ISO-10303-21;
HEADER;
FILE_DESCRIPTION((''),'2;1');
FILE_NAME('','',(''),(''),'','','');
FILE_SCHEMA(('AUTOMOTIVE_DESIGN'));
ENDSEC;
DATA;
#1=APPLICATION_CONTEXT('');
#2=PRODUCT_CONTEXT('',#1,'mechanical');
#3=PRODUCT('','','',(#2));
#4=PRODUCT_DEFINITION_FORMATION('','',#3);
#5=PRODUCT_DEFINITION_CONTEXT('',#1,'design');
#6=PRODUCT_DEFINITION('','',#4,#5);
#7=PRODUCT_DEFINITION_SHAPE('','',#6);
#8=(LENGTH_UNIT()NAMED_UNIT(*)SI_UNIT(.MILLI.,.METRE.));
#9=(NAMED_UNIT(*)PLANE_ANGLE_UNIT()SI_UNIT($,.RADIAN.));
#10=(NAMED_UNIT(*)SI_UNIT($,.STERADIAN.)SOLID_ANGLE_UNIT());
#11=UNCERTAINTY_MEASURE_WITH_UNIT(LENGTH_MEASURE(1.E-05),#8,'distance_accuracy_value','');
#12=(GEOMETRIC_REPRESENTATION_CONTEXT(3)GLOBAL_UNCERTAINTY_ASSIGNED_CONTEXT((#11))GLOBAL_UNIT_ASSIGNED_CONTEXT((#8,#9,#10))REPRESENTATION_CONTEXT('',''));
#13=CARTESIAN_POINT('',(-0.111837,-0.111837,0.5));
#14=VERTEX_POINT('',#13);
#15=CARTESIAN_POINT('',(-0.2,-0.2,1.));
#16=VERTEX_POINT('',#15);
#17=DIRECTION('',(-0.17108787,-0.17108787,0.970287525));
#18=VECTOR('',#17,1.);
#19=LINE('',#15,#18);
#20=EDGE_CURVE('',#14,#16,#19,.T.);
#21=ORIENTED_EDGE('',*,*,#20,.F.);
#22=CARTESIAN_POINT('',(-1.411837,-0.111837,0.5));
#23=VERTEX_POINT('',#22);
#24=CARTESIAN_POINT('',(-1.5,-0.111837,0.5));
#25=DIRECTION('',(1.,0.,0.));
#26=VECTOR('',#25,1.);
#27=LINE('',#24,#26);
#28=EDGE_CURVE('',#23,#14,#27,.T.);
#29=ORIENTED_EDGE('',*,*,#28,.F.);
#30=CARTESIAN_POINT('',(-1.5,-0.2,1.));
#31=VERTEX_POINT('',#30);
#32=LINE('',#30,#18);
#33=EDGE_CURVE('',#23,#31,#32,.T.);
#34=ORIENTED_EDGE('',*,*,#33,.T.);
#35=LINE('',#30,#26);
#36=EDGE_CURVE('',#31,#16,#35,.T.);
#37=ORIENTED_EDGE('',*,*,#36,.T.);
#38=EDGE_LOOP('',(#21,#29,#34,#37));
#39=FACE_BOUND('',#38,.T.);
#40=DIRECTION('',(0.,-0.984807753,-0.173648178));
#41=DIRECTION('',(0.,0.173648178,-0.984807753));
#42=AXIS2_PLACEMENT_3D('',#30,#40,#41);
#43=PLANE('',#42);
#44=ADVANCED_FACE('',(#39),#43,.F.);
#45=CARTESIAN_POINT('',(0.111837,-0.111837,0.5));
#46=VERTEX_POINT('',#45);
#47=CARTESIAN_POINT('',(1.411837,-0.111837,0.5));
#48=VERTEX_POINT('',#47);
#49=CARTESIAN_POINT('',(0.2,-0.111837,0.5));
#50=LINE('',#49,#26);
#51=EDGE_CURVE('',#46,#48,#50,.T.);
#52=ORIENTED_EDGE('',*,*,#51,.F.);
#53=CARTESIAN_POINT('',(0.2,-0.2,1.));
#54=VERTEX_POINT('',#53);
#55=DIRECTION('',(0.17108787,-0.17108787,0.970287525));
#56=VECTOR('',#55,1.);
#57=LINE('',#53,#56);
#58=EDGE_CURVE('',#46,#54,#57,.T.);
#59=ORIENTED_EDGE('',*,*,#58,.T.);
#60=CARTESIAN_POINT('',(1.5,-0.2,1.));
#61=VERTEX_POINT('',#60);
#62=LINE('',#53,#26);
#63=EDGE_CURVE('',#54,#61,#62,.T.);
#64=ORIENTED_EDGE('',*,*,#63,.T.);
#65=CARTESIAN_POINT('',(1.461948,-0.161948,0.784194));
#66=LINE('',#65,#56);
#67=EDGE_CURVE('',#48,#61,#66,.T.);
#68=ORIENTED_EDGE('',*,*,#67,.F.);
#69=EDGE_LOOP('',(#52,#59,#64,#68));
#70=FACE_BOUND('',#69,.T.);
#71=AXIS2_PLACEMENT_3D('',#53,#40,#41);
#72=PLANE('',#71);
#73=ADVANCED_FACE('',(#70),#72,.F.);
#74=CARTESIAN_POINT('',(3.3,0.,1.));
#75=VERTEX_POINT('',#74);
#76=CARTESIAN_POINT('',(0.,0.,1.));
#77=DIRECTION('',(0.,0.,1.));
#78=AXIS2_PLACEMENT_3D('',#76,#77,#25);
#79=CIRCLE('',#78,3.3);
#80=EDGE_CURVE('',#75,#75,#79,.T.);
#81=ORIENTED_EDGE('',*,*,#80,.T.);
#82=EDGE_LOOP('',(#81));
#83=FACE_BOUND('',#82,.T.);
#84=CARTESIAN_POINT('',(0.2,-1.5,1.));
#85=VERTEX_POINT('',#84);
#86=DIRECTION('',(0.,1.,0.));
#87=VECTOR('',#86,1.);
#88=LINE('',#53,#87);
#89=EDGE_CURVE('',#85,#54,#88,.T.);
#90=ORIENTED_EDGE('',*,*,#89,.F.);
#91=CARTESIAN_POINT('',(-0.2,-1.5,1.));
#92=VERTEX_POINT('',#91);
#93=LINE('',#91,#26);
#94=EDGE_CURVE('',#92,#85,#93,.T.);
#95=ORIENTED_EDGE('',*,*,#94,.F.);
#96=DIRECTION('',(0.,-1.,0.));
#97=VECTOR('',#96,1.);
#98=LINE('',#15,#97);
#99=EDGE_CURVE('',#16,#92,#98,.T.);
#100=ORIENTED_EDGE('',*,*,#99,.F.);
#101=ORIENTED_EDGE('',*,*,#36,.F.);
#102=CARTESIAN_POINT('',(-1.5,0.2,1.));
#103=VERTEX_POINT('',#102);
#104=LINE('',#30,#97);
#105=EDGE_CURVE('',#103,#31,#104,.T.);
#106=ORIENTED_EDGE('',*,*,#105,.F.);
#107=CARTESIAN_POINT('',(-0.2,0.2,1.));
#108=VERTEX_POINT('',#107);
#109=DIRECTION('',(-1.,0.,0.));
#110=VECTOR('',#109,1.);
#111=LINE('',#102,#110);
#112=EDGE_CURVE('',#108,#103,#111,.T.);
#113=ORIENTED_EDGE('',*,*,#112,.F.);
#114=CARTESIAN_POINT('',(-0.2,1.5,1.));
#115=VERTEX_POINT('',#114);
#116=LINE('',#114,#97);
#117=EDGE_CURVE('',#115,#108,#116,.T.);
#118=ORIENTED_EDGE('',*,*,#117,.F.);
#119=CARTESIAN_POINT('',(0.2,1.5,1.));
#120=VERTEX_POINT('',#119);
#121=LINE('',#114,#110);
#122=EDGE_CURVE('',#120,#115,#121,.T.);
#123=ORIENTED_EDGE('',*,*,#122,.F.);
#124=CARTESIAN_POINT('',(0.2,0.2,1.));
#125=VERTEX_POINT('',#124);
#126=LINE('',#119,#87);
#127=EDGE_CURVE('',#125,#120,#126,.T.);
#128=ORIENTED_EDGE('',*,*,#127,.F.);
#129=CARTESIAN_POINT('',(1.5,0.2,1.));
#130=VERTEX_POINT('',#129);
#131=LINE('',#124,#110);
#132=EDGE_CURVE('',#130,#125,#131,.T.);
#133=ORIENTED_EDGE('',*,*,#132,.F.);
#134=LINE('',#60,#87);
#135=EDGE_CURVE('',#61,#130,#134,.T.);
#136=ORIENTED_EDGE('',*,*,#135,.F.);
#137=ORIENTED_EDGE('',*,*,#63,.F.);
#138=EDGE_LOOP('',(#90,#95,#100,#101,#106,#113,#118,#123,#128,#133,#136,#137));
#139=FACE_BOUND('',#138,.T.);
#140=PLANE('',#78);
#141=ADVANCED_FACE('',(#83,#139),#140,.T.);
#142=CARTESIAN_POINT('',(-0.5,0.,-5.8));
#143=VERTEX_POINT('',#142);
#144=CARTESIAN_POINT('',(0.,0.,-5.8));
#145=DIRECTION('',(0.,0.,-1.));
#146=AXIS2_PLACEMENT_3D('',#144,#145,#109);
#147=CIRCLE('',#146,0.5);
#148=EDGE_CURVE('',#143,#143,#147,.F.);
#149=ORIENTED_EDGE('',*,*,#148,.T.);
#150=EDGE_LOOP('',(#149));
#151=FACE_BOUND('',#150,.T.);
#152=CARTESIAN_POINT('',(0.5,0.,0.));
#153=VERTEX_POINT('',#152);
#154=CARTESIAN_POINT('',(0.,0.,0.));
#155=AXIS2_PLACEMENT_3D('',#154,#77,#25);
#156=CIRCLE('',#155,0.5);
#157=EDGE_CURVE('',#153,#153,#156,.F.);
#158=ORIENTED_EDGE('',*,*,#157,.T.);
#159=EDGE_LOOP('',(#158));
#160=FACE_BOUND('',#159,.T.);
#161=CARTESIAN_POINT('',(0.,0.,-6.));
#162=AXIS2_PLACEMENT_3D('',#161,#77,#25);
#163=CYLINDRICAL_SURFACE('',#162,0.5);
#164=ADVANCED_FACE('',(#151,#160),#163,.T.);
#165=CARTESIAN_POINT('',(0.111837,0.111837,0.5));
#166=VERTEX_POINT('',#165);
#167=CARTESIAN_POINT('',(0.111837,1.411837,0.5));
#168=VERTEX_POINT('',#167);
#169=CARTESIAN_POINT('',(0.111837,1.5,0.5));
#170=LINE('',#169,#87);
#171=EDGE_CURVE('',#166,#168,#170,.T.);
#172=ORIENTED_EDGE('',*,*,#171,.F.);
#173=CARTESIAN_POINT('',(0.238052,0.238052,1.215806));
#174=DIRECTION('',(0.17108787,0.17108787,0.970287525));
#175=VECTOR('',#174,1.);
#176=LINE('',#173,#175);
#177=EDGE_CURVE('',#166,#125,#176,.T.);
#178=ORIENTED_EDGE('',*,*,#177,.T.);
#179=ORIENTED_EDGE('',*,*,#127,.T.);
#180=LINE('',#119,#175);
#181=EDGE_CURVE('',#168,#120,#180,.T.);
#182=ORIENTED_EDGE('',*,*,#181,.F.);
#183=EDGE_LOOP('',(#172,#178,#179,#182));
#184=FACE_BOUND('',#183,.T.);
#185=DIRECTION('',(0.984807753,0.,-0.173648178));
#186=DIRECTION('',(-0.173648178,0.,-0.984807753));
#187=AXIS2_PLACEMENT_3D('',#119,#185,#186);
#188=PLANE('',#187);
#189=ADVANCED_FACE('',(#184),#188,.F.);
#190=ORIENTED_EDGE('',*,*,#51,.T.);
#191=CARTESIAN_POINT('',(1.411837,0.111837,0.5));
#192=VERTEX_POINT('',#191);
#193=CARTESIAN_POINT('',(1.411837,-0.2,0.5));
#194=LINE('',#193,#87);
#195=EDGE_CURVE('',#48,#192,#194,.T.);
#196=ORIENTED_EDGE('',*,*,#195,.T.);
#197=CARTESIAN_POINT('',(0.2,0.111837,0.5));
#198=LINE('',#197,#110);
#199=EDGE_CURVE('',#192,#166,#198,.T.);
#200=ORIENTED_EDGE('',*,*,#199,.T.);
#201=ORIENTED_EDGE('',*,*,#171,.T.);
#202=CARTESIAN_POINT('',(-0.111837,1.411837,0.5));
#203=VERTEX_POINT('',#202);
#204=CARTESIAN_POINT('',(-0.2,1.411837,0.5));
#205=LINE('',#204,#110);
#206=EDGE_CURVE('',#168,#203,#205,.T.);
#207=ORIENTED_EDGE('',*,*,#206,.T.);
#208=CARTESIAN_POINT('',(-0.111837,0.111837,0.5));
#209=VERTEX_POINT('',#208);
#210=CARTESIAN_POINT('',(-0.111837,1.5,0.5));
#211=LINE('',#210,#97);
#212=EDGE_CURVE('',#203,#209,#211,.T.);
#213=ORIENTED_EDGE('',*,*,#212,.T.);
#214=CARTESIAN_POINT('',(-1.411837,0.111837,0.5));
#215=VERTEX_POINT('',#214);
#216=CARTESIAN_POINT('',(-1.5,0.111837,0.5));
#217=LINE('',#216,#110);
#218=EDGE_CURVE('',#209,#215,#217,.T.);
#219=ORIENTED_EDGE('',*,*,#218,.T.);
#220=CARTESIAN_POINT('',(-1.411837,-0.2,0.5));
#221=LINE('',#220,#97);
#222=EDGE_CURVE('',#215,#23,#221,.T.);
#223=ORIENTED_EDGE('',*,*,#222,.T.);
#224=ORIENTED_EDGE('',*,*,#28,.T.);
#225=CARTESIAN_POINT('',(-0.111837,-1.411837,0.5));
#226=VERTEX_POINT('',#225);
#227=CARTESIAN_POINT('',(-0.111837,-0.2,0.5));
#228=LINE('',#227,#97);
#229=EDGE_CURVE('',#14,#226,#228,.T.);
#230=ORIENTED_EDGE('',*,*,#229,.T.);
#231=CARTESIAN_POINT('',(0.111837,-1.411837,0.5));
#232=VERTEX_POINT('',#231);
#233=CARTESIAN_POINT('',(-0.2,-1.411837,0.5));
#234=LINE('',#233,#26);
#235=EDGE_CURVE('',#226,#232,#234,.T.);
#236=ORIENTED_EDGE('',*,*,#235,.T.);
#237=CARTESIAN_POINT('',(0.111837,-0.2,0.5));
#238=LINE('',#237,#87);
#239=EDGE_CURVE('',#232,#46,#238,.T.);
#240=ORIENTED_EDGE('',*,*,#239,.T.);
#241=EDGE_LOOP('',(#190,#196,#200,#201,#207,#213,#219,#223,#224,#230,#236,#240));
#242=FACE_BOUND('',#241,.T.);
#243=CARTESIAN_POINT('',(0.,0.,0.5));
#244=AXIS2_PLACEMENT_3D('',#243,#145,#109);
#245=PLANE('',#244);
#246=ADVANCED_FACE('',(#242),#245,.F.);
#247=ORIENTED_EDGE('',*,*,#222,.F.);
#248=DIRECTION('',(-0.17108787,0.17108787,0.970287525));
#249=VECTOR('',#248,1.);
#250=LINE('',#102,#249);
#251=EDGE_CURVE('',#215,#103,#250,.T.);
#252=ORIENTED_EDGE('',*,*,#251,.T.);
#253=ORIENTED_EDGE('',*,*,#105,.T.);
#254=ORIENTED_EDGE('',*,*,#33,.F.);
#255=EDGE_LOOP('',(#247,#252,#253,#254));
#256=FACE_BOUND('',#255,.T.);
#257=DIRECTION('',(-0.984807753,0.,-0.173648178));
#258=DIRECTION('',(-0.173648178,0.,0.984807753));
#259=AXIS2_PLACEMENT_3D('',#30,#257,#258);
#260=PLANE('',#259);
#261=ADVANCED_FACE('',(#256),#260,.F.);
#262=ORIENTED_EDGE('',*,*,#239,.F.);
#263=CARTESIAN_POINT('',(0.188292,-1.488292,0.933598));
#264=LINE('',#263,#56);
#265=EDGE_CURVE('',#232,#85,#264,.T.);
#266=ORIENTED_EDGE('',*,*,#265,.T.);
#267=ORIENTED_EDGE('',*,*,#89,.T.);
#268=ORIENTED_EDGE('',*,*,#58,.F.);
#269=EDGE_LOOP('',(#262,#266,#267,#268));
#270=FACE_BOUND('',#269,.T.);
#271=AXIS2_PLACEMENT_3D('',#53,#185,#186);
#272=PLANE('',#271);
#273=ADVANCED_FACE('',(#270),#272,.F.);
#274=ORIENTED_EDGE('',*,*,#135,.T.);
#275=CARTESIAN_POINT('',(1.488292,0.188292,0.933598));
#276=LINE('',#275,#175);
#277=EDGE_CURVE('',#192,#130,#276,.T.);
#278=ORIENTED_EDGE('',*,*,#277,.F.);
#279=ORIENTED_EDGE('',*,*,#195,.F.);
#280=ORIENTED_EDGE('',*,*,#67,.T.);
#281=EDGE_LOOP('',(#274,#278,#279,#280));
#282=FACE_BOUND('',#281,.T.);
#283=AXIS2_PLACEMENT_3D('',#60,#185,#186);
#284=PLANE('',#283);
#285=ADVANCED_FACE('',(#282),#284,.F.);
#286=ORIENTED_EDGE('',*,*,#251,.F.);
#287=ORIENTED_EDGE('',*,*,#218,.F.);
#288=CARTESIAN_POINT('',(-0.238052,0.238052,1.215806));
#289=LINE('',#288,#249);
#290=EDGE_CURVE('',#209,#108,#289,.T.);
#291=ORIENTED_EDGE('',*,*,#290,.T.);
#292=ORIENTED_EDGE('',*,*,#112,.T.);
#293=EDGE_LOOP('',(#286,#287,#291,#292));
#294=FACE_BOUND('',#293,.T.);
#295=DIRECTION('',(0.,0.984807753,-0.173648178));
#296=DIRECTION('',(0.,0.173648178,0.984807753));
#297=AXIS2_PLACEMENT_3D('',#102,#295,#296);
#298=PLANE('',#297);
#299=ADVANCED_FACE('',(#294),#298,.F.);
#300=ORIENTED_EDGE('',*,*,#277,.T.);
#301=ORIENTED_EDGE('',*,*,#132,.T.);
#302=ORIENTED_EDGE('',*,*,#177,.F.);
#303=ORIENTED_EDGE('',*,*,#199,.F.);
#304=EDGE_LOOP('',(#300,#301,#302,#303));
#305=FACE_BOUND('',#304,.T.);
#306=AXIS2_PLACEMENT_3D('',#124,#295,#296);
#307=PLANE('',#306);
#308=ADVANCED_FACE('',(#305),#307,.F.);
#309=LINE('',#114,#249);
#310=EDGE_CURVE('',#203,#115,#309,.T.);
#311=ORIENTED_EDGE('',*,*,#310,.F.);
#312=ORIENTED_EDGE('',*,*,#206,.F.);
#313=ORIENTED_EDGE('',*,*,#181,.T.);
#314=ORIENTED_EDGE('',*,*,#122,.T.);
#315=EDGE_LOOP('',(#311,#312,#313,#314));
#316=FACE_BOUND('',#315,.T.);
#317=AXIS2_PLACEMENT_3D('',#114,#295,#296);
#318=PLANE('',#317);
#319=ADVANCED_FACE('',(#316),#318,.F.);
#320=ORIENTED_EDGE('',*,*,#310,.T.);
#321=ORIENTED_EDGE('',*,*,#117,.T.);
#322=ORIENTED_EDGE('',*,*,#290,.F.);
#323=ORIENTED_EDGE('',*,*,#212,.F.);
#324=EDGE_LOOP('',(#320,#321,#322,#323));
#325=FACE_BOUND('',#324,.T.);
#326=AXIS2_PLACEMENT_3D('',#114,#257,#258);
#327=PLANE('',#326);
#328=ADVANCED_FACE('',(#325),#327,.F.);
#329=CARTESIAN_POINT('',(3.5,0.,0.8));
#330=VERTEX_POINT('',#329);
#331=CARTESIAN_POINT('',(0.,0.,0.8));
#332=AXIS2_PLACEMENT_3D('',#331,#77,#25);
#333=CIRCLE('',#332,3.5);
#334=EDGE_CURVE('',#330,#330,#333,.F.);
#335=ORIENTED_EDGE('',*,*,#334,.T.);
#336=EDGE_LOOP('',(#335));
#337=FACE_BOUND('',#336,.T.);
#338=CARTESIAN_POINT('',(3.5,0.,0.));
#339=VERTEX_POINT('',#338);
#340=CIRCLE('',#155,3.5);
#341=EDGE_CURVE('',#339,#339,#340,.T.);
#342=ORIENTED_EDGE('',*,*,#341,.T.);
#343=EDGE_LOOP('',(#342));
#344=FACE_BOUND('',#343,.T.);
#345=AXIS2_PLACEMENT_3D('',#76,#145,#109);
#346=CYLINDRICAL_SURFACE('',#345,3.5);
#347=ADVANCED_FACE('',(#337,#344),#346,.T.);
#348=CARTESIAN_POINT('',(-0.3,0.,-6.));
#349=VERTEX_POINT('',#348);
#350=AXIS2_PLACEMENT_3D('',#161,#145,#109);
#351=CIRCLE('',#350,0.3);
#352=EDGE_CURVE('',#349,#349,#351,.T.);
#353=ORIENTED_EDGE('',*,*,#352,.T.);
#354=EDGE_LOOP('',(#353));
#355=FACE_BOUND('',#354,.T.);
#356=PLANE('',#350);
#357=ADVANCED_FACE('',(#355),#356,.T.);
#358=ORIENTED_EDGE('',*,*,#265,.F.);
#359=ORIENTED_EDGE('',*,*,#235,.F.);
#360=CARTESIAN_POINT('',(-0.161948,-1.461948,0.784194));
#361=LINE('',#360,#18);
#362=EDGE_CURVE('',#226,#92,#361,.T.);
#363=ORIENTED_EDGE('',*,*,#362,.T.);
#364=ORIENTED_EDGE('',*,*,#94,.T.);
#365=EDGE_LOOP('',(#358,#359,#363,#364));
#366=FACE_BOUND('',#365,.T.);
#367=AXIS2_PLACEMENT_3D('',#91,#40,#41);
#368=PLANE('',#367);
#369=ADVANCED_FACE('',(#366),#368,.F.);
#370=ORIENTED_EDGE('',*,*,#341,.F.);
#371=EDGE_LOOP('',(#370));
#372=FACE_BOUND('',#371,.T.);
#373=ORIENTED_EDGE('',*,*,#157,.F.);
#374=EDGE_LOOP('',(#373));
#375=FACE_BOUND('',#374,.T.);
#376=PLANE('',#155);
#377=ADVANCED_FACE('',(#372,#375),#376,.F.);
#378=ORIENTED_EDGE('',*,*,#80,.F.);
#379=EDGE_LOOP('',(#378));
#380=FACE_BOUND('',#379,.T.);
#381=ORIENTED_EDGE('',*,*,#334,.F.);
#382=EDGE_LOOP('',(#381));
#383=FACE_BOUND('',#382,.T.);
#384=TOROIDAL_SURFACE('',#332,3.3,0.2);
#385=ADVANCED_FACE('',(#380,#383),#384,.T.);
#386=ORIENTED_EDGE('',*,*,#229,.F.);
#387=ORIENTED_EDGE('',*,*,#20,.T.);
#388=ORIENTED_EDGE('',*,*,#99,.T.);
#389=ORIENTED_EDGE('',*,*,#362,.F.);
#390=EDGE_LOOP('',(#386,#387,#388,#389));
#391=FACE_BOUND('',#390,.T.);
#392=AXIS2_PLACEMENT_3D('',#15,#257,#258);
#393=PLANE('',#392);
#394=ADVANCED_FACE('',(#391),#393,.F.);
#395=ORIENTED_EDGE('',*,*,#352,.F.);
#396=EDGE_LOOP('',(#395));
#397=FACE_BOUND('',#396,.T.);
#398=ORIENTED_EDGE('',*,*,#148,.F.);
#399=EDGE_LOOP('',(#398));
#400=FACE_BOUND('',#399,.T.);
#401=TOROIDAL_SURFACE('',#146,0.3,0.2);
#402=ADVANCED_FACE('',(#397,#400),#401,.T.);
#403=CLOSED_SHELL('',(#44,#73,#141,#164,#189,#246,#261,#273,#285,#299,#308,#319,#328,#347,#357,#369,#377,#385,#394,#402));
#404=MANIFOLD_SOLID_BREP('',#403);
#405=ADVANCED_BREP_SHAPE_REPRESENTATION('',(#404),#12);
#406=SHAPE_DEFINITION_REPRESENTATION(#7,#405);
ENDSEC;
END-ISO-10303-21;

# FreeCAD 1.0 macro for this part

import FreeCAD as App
import Part
import Sketcher
Q = App.Units.Quantity


def edges_at(feature, points):
    """Names of the edges that pass closest to the given points."""
    edges = feature.Shape.Edges
    near = lambda p: min(range(len(edges)), key=lambda i: edges[i].distToShape(Part.Vertex(*p))[0])
    return sorted({f"Edge{near(p) + 1}" for p in points})


def faces_at(feature, points):
    """Names of the faces that lie closest to the given points."""
    faces = feature.Shape.Faces
    near = lambda p: min(range(len(faces)), key=lambda i: faces[i].distToShape(Part.Vertex(*p))[0])
    return sorted({f"Face{near(p) + 1}" for p in points})

doc = App.newDocument("Part")
body = doc.addObject("PartDesign::Body", "Body")

sketch1 = doc.addObject("Sketcher::SketchObject", "Sketch")
body.addObject(sketch1)
sketch1.AttachmentSupport = (doc.XY_Plane, [""])
sketch1.MapMode = "FlatFace"
sketch1.addGeometry(Part.Circle(App.Vector(0, 0, 0), App.Vector(0, 0, 1), 3.5), False)
sketch1.addConstraint([
    Sketcher.Constraint("Coincident", 0, 3, -1, 1),
    Sketcher.Constraint("Diameter", 0, Q("7 mm")),
])
pad1 = doc.addObject("PartDesign::Pad", "Pad")
body.addObject(pad1)
pad1.Profile = sketch1
pad1.Length = 1

sketch2 = doc.addObject("Sketcher::SketchObject", "Sketch001")
body.addObject(sketch2)
sketch2.AttachmentSupport = (doc.XY_Plane, [""])
sketch2.MapMode = "FlatFace"
sketch2.addGeometry(Part.Circle(App.Vector(0, 0, 0), App.Vector(0, 0, 1), 0.5), False)
sketch2.addConstraint([
    Sketcher.Constraint("Coincident", 0, 3, -1, 1),
    Sketcher.Constraint("Diameter", 0, Q("1 mm")),
])
pad2 = doc.addObject("PartDesign::Pad", "Pad001")
body.addObject(pad2)
pad2.Profile = sketch2
pad2.Length = 6
pad2.Reversed = True
doc.recompute()

fillet = doc.addObject("PartDesign::Fillet", "Fillet")
body.addObject(fillet)
fillet.Base = (pad2, edges_at(pad2, [(-3.5, 0, 1)]))
fillet.Radius = 0.2
body2 = doc.addObject("PartDesign::Body", "Body001")

sketch3 = doc.addObject("Sketcher::SketchObject", "Sketch002")
body2.addObject(sketch3)
sketch3.AttachmentSupport = (doc.getObject("XY_Plane001"), [""])
sketch3.MapMode = "FlatFace"
sketch3.AttachmentOffset = App.Placement(App.Vector(0, 0, 1), App.Rotation())
sketch3.addGeometry([
    Part.LineSegment(App.Vector(-0.2, -0.2, 0), App.Vector(-0.2, -1.5, 0)),
    Part.LineSegment(App.Vector(-0.2, -1.5, 0), App.Vector(0.2, -1.5, 0)),
    Part.LineSegment(App.Vector(0.2, -1.5, 0), App.Vector(0.2, -0.2, 0)),
    Part.LineSegment(App.Vector(0.2, -0.2, 0), App.Vector(1.5, -0.2, 0)),
    Part.LineSegment(App.Vector(1.5, -0.2, 0), App.Vector(1.5, 0.2, 0)),
    Part.LineSegment(App.Vector(1.5, 0.2, 0), App.Vector(0.2, 0.2, 0)),
    Part.LineSegment(App.Vector(0.2, 0.2, 0), App.Vector(0.2, 1.5, 0)),
    Part.LineSegment(App.Vector(0.2, 1.5, 0), App.Vector(-0.2, 1.5, 0)),
    Part.LineSegment(App.Vector(-0.2, 1.5, 0), App.Vector(-0.2, 0.2, 0)),
    Part.LineSegment(App.Vector(-0.2, 0.2, 0), App.Vector(-1.5, 0.2, 0)),
    Part.LineSegment(App.Vector(-1.5, 0.2, 0), App.Vector(-1.5, -0.2, 0)),
    Part.LineSegment(App.Vector(-1.5, -0.2, 0), App.Vector(-0.2, -0.2, 0)),
], False)
sketch3.addConstraint([
    Sketcher.Constraint("Coincident", 0, 2, 1, 1),
    Sketcher.Constraint("Coincident", 1, 2, 2, 1),
    Sketcher.Constraint("Coincident", 2, 2, 3, 1),
    Sketcher.Constraint("Coincident", 3, 2, 4, 1),
    Sketcher.Constraint("Coincident", 4, 2, 5, 1),
    Sketcher.Constraint("Coincident", 5, 2, 6, 1),
    Sketcher.Constraint("Coincident", 6, 2, 7, 1),
    Sketcher.Constraint("Coincident", 7, 2, 8, 1),
    Sketcher.Constraint("Coincident", 8, 2, 9, 1),
    Sketcher.Constraint("Coincident", 9, 2, 10, 1),
    Sketcher.Constraint("Coincident", 10, 2, 11, 1),
    Sketcher.Constraint("Coincident", 11, 2, 0, 1),
    Sketcher.Constraint("Vertical", 0),
    Sketcher.Constraint("Horizontal", 1),
    Sketcher.Constraint("Vertical", 2),
    Sketcher.Constraint("Horizontal", 3),
    Sketcher.Constraint("Vertical", 4),
    Sketcher.Constraint("Horizontal", 5),
    Sketcher.Constraint("Vertical", 6),
    Sketcher.Constraint("Horizontal", 7),
    Sketcher.Constraint("Vertical", 8),
    Sketcher.Constraint("Horizontal", 9),
    Sketcher.Constraint("Vertical", 10),
    Sketcher.Constraint("Horizontal", 11),
    Sketcher.Constraint("Symmetric", 0, 2, 6, 2, -1, 1),
    Sketcher.Constraint("Symmetric", 2, 2, 8, 2, -1, 1),
    Sketcher.Constraint("Symmetric", 4, 2, 10, 2, -1, 1),
    Sketcher.Constraint("Symmetric", 5, 2, 8, 2, -2),
    Sketcher.Constraint("Equal", 11, 0),
    Sketcher.Constraint("Equal", 7, 4),
    Sketcher.Constraint("DistanceX", 1, 1, 1, 2, Q("0.4 mm")),
    Sketcher.Constraint("DistanceX", 3, 1, 3, 2, Q("1.3 mm")),
])
pad3 = doc.addObject("PartDesign::Pad", "Pad002")
body2.addObject(pad3)
pad3.Profile = sketch3
pad3.Length = 0.5
pad3.Reversed = True
doc.recompute()

datumplane = doc.addObject("PartDesign::Plane", "DatumPlane")
body2.addObject(datumplane)
datumplane.AttachmentSupport = (doc.getObject("XY_Plane001"), [""])
datumplane.MapMode = "FlatFace"
datumplane.AttachmentOffset = App.Placement(App.Vector(0, 0, 1), App.Rotation())
draft = doc.addObject("PartDesign::Draft", "Draft")
body2.addObject(draft)
draft.Base = (pad3, faces_at(pad3, [
    (-0.2, -0.85, 0.75),
    (0, -1.5, 0.75),
    (0.2, -0.85, 0.75),
    (0.85, -0.2, 0.75),
    (1.5, 0, 0.75),
    (0.85, 0.2, 0.75),
    (0.2, 0.85, 0.75),
    (0, 1.5, 0.75),
    (-0.2, 0.85, 0.75),
    (-0.85, 0.2, 0.75),
    (-1.5, 0, 0.75),
    (-0.85, -0.2, 0.75),
]))
draft.NeutralPlane = (datumplane, [""])
draft.Angle = 10
draft.Reversed = True
doc.recompute()

boolean = doc.addObject("PartDesign::Boolean", "Boolean")
body.addObject(boolean)
boolean.Type = "Cut"
boolean.addObjects([body2])
doc.recompute()

fillet2 = doc.addObject("PartDesign::Fillet", "Fillet001")
body.addObject(fillet2)
fillet2.Base = (boolean, edges_at(boolean, [(-0.5, 0, -6)]))
fillet2.Radius = 0.2

doc.recompute()
